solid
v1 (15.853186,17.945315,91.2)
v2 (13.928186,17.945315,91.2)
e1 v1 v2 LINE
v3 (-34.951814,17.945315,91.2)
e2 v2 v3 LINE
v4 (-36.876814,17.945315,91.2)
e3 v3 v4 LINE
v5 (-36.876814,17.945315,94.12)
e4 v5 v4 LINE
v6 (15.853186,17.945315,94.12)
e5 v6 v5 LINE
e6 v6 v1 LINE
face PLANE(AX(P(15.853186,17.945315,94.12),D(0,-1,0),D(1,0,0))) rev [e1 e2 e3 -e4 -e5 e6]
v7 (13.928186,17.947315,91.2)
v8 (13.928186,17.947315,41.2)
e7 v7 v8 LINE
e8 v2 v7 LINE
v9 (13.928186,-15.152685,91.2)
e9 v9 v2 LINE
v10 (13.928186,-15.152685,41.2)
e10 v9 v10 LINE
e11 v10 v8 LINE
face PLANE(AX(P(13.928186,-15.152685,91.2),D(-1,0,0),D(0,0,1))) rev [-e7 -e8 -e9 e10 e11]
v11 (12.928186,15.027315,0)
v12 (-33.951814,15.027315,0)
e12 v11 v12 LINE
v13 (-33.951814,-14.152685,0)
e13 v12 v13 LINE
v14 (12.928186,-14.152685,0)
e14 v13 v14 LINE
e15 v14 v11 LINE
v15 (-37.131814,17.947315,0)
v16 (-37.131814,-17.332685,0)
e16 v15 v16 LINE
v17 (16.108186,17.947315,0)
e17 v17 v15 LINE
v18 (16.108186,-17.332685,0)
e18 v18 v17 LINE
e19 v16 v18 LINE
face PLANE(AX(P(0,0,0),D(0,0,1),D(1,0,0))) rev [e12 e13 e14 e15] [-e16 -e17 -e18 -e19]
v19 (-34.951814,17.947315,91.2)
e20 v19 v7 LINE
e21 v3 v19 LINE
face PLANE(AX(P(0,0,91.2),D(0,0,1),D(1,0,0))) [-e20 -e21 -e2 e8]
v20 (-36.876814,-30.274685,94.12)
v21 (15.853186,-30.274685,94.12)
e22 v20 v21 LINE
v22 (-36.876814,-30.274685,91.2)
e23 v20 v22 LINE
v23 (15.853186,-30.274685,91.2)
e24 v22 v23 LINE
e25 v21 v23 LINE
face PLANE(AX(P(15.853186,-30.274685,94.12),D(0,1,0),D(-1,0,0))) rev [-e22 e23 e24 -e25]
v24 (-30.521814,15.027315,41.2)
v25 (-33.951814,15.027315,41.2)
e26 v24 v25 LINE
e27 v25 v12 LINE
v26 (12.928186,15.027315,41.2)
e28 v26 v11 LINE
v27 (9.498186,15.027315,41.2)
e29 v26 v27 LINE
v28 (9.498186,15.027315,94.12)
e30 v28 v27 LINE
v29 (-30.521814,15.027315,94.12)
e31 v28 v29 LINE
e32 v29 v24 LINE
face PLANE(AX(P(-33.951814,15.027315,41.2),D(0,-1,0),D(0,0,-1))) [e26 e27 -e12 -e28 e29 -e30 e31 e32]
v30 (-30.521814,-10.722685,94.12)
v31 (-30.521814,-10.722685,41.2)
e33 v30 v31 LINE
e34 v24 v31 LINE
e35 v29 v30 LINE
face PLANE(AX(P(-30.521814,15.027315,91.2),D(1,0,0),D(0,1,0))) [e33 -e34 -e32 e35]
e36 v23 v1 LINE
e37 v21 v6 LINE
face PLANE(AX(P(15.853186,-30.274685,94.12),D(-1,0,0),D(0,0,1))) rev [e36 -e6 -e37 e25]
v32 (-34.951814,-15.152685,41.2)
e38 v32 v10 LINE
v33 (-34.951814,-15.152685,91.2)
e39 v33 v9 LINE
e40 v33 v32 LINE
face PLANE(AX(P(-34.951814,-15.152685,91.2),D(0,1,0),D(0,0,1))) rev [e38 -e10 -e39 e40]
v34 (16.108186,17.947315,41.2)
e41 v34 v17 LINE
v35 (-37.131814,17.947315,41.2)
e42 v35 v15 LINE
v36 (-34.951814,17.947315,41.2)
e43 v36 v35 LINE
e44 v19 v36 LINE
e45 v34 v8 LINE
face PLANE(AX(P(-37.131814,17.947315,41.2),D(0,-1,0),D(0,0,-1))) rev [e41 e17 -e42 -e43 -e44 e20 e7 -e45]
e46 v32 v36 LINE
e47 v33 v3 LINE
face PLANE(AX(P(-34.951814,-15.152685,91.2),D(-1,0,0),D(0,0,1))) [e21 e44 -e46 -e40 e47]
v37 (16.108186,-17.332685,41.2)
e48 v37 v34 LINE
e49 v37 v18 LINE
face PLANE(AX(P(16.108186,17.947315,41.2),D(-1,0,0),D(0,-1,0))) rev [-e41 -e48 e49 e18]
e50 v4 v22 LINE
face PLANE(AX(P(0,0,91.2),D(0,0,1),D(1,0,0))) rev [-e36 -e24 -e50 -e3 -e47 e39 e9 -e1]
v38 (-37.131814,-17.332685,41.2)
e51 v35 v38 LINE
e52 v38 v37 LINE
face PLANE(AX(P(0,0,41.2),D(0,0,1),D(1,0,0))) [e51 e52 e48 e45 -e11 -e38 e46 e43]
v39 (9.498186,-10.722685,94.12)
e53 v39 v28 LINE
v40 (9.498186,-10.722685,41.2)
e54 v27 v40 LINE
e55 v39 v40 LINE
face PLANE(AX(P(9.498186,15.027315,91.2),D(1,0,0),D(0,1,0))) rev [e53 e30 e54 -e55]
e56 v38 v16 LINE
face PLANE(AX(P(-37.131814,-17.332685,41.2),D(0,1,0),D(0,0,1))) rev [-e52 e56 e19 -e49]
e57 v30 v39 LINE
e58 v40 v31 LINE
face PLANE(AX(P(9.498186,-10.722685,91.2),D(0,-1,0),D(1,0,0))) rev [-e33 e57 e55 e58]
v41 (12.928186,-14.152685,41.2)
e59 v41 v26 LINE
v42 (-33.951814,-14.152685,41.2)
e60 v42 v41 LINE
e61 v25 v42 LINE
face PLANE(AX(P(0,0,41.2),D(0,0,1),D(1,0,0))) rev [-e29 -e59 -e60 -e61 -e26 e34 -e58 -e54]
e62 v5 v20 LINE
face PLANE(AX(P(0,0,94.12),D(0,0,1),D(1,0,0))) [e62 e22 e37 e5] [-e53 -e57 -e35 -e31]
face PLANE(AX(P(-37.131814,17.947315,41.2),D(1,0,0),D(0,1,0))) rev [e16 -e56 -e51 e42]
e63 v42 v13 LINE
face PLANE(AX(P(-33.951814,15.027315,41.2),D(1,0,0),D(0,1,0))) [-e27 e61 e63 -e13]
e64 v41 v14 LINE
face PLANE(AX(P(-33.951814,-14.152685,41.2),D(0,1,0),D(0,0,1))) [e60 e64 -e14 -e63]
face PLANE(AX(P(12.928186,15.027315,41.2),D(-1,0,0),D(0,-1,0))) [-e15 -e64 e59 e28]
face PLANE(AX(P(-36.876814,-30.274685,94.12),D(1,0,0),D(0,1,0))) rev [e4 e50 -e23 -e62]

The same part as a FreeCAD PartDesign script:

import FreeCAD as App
import Part
import Sketcher
from FreeCAD import Vector

doc = App.newDocument("Part")
body = doc.addObject("PartDesign::Body", "Body")

# Sketch on XY plane
sketch1 = body.newObject("Sketcher::SketchObject", "Sketch")
sketch1.AttachmentSupport = (doc.getObject("XY_Plane"), [""])
sketch1.MapMode = "FlatFace"
sketch1.addGeometry([
    Part.LineSegment(Vector(-37, 18, 0), Vector(-37, -17, 0)),  # 0
    Part.LineSegment(Vector(-37, -17, 0), Vector(16, -17, 0)),  # 1
    Part.LineSegment(Vector(16, -17, 0), Vector(16, 18, 0)),  # 2
    Part.LineSegment(Vector(16, 18, 0), Vector(-37, 18, 0)),  # 3
    Part.LineSegment(Vector(13, -14, 0), Vector(-34, -14, 0)),  # 4
    Part.LineSegment(Vector(-34, -14, 0), Vector(-34, 15, 0)),  # 5
    Part.LineSegment(Vector(-34, 15, 0), Vector(13, 15, 0)),  # 6
    Part.LineSegment(Vector(13, 15, 0), Vector(13, -14, 0)),  # 7
], False)
sketch1.addConstraint([
    Sketcher.Constraint("Coincident", 0, 2, 1, 1),
    Sketcher.Constraint("Coincident", 1, 2, 2, 1),
    Sketcher.Constraint("Coincident", 2, 2, 3, 1),
    Sketcher.Constraint("Coincident", 3, 2, 0, 1),
    Sketcher.Constraint("Coincident", 4, 2, 5, 1),
    Sketcher.Constraint("Coincident", 5, 2, 6, 1),
    Sketcher.Constraint("Coincident", 6, 2, 7, 1),
    Sketcher.Constraint("Coincident", 7, 2, 4, 1),
    Sketcher.Constraint("Vertical", 0),
    Sketcher.Constraint("Horizontal", 1),
    Sketcher.Constraint("Vertical", 2),
    Sketcher.Constraint("Horizontal", 3),
    Sketcher.Constraint("Horizontal", 4),
    Sketcher.Constraint("Vertical", 5),
    Sketcher.Constraint("Horizontal", 6),
    Sketcher.Constraint("Vertical", 7),
    Sketcher.Constraint("DistanceX", 1, 1, 1, 2, 53.24),
    Sketcher.Constraint("DistanceX", 4, 2, 4, 1, 46.88),
    Sketcher.Constraint("DistanceY", 0, 2, 0, 1, 35.28),
    Sketcher.Constraint("DistanceY", 5, 1, 5, 2, 29.18),
    Sketcher.Constraint("DistanceY", 4, 2, 3, 2, 32.1),
    Sketcher.Constraint("DistanceX", 0, 2, 4, 2, 3.18),
    Sketcher.Constraint("DistanceX", 0, 2, -1, 1, 37.131814),
    Sketcher.Constraint("DistanceY", 0, 2, -1, 1, 17.332685),
])
pad1 = body.newObject("PartDesign::Pad", "Pad")
pad1.Profile = sketch1
pad1.Length = 41.2

# Sketch on XY plane
sketch2 = body.newObject("Sketcher::SketchObject", "Sketch001")
sketch2.AttachmentSupport = (doc.getObject("XY_Plane"), [""])
sketch2.MapMode = "FlatFace"
sketch2.AttachmentOffset = App.Placement(Vector(0, 0, 41.2), App.Rotation())
sketch2.addGeometry([
    Part.LineSegment(Vector(-35, 18, 0), Vector(-35, -15, 0)),  # 0
    Part.LineSegment(Vector(-35, -15, 0), Vector(14, -15, 0)),  # 1
    Part.LineSegment(Vector(14, -15, 0), Vector(14, 18, 0)),  # 2
    Part.LineSegment(Vector(14, 18, 0), Vector(-35, 18, 0)),  # 3
    Part.LineSegment(Vector(9, -11, 0), Vector(-31, -11, 0)),  # 4
    Part.LineSegment(Vector(-31, -11, 0), Vector(-31, 15, 0)),  # 5
    Part.LineSegment(Vector(-31, 15, 0), Vector(9, 15, 0)),  # 6
    Part.LineSegment(Vector(9, 15, 0), Vector(9, -11, 0)),  # 7
], False)
sketch2.addConstraint([
    Sketcher.Constraint("Coincident", 0, 2, 1, 1),
    Sketcher.Constraint("Coincident", 1, 2, 2, 1),
    Sketcher.Constraint("Coincident", 2, 2, 3, 1),
    Sketcher.Constraint("Coincident", 3, 2, 0, 1),
    Sketcher.Constraint("Coincident", 4, 2, 5, 1),
    Sketcher.Constraint("Coincident", 5, 2, 6, 1),
    Sketcher.Constraint("Coincident", 6, 2, 7, 1),
    Sketcher.Constraint("Coincident", 7, 2, 4, 1),
    Sketcher.Constraint("Vertical", 0),
    Sketcher.Constraint("Horizontal", 1),
    Sketcher.Constraint("Vertical", 2),
    Sketcher.Constraint("Horizontal", 3),
    Sketcher.Constraint("Horizontal", 4),
    Sketcher.Constraint("Vertical", 5),
    Sketcher.Constraint("Horizontal", 6),
    Sketcher.Constraint("Vertical", 7),
    Sketcher.Constraint("DistanceY", 0, 2, 0, 1, 33.1),
    Sketcher.Constraint("DistanceX", 1, 1, 1, 2, 48.88),
    Sketcher.Constraint("DistanceX", 4, 2, 4, 1, 40.02),
    Sketcher.Constraint("DistanceY", 5, 1, 5, 2, 25.75),
    Sketcher.Constraint("DistanceX", 0, 2, 4, 2, 4.43),
    Sketcher.Constraint("DistanceY", 0, 2, 4, 2, 4.43),
    Sketcher.Constraint("DistanceX", 0, 2, -1, 1, 34.951814),
    Sketcher.Constraint("DistanceY", 0, 2, -1, 1, 15.152685),
])
pad2 = body.newObject("PartDesign::Pad", "Pad001")
pad2.Profile = sketch2
pad2.Length = 50

# Sketch on XY plane
sketch3 = body.newObject("Sketcher::SketchObject", "Sketch002")
sketch3.AttachmentSupport = (doc.getObject("XY_Plane"), [""])
sketch3.MapMode = "FlatFace"
sketch3.AttachmentOffset = App.Placement(Vector(0, 0, 91.2), App.Rotation())
sketch3.addGeometry([
    Part.LineSegment(Vector(-37, 18, 0), Vector(-37, -30, 0)),  # 0
    Part.LineSegment(Vector(-37, -30, 0), Vector(16, -30, 0)),  # 1
    Part.LineSegment(Vector(16, -30, 0), Vector(16, 18, 0)),  # 2
    Part.LineSegment(Vector(16, 18, 0), Vector(-37, 18, 0)),  # 3
    Part.LineSegment(Vector(9, -11, 0), Vector(-31, -11, 0)),  # 4
    Part.LineSegment(Vector(-31, -11, 0), Vector(-31, 15, 0)),  # 5
    Part.LineSegment(Vector(-31, 15, 0), Vector(9, 15, 0)),  # 6
    Part.LineSegment(Vector(9, 15, 0), Vector(9, -11, 0)),  # 7
], False)
sketch3.addConstraint([
    Sketcher.Constraint("Coincident", 0, 2, 1, 1),
    Sketcher.Constraint("Coincident", 1, 2, 2, 1),
    Sketcher.Constraint("Coincident", 2, 2, 3, 1),
    Sketcher.Constraint("Coincident", 3, 2, 0, 1),
    Sketcher.Constraint("Coincident", 4, 2, 5, 1),
    Sketcher.Constraint("Coincident", 5, 2, 6, 1),
    Sketcher.Constraint("Coincident", 6, 2, 7, 1),
    Sketcher.Constraint("Coincident", 7, 2, 4, 1),
    Sketcher.Constraint("Vertical", 0),
    Sketcher.Constraint("Horizontal", 1),
    Sketcher.Constraint("Vertical", 2),
    Sketcher.Constraint("Horizontal", 3),
    Sketcher.Constraint("Horizontal", 4),
    Sketcher.Constraint("Vertical", 5),
    Sketcher.Constraint("Horizontal", 6),
    Sketcher.Constraint("Vertical", 7),
    Sketcher.Constraint("DistanceX", 1, 1, 1, 2, 52.73),
    Sketcher.Constraint("DistanceX", 4, 2, 4, 1, 40.02),
    Sketcher.Constraint("DistanceY", 0, 2, 0, 1, 48.22),
    Sketcher.Constraint("DistanceY", 5, 1, 5, 2, 25.75),
    Sketcher.Constraint("DistanceX", 0, 2, 4, 2, 6.355),
    Sketcher.Constraint("DistanceY", 0, 2, 4, 2, 19.552),
    Sketcher.Constraint("DistanceX", 0, 2, -1, 1, 36.876814),
    Sketcher.Constraint("DistanceY", 0, 2, -1, 1, 30.274685),
])
pad3 = body.newObject("PartDesign::Pad", "Pad002")
pad3.Profile = sketch3
pad3.Length = 2.92

doc.recompute()
